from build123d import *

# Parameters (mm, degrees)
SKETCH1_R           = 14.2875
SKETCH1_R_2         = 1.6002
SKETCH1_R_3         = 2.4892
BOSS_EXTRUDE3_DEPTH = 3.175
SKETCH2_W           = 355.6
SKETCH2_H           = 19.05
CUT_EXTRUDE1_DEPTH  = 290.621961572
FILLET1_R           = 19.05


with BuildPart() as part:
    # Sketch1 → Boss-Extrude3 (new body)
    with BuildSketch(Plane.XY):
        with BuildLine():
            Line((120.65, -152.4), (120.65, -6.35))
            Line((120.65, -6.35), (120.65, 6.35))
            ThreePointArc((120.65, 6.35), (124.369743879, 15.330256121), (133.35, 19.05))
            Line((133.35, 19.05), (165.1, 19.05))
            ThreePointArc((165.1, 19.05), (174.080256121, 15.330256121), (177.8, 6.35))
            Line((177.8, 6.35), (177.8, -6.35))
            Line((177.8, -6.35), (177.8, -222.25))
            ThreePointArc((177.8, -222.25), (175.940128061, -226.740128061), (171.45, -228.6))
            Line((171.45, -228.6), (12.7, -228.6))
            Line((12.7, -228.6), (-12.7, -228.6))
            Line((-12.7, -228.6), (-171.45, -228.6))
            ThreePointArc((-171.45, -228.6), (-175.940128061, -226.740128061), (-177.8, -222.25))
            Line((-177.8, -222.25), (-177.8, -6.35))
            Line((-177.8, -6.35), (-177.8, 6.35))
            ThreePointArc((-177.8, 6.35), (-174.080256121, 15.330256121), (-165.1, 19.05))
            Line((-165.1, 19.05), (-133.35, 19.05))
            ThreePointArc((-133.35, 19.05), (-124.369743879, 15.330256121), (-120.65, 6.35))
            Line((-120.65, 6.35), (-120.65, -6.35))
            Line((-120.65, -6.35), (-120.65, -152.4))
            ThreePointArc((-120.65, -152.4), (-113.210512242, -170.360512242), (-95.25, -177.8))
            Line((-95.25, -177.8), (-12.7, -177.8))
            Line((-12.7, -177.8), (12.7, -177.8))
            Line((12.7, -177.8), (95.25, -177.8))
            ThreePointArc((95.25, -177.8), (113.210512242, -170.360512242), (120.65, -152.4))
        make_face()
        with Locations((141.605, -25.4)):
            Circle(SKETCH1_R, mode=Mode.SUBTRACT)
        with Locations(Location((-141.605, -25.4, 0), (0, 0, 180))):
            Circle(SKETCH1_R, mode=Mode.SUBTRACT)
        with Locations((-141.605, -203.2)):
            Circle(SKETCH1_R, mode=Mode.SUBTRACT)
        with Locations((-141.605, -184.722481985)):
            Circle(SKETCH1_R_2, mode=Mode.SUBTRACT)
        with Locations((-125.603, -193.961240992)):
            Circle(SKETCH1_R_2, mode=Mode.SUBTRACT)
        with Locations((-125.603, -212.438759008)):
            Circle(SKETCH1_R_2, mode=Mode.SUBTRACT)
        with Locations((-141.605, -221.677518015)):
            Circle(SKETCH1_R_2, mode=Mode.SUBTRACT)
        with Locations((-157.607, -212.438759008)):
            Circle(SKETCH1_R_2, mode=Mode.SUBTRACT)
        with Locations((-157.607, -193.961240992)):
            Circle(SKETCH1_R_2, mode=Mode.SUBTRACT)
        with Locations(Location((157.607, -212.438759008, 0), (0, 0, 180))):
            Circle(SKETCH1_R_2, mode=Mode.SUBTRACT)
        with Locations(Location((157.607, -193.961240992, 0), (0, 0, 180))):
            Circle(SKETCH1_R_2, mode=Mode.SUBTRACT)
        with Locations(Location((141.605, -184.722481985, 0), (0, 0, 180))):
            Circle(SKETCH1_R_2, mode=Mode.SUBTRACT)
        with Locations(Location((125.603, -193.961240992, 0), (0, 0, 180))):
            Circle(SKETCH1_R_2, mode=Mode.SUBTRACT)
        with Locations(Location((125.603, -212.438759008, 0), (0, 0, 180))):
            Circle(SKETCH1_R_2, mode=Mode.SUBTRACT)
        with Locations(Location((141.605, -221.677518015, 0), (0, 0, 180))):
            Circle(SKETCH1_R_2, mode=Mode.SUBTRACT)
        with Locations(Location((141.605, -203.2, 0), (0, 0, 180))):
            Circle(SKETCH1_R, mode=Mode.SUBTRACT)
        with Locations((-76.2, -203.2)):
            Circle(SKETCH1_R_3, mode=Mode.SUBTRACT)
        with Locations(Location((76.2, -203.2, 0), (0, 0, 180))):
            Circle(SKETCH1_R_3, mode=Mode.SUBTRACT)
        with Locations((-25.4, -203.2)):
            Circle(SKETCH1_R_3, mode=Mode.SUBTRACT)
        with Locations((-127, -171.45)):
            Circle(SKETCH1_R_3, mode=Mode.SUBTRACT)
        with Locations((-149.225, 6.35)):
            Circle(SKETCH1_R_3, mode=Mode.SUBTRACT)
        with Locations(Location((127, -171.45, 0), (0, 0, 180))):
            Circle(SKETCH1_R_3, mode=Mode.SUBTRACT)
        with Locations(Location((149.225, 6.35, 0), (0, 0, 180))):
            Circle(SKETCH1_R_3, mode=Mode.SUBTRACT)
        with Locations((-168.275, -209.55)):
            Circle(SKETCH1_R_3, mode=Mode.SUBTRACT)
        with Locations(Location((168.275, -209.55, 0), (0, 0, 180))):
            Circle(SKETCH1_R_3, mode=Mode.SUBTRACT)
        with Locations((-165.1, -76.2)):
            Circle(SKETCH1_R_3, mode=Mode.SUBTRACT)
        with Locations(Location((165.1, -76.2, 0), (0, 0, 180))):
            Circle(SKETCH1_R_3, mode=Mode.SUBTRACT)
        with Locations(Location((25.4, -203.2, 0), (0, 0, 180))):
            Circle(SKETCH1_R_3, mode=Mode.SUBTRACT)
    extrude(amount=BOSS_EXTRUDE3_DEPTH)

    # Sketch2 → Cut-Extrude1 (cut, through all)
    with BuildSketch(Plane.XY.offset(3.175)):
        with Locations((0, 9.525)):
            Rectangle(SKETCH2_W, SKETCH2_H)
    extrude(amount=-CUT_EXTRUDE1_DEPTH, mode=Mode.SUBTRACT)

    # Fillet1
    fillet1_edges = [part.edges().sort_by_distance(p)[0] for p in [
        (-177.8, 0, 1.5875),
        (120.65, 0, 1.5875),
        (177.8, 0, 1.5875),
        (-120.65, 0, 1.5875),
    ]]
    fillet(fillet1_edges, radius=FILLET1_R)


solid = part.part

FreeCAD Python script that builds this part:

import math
import FreeCAD as App
import Part
import Sketcher
from FreeCAD import Vector
Q = App.Units.Quantity


def edges_at(feature, points):
    """Names of the edges that pass closest to the given points."""
    edges = feature.Shape.Edges
    near = lambda p: min(range(len(edges)), key=lambda i: edges[i].distToShape(Part.Vertex(*p))[0])
    return sorted({f"Edge{near(p) + 1}" for p in points})


def add_polygon(sketch, points):
    """Adds a closed chain of lines whose ends are joined by coincident constraints."""
    first, n = sketch.GeometryCount, len(points)
    for a, b in zip(points, points[1:] + points[:1]):
        sketch.addGeometry(Part.LineSegment(App.Vector(*a, 0), App.Vector(*b, 0)), False)
    for i in range(n):
        sketch.addConstraint(Sketcher.Constraint("Coincident", first + i, 2, first + (i + 1) % n, 1))

doc = App.newDocument("Part")
body = doc.addObject("PartDesign::Body", "Body")

# Sketch on XY plane
sketch1 = doc.addObject("Sketcher::SketchObject", "Sketch")
body.addObject(sketch1)
sketch1.AttachmentSupport = (doc.XY_Plane, [""])
sketch1.MapMode = "FlatFace"
sketch1.addGeometry(Part.LineSegment(Vector(120.65, 6.35, 0), Vector(120.65, -152.4, 0)), False)
sketch1.addGeometry(Part.ArcOfCircle(Part.Circle(Vector(95.25, -152.4, 0), Vector(0, 0, 1), 25.4), math.radians(-90), math.radians(0)), False)
sketch1.addGeometry(Part.LineSegment(Vector(95.25, -177.8, 0), Vector(-95.25, -177.8, 0)), False)
sketch1.addGeometry(Part.ArcOfCircle(Part.Circle(Vector(-95.25, -152.4, 0), Vector(0, 0, 1), 25.4), math.radians(180), math.radians(270)), False)
sketch1.addGeometry(Part.LineSegment(Vector(-120.65, -152.4, 0), Vector(-120.65, 6.35, 0)), False)
sketch1.addGeometry(Part.ArcOfCircle(Part.Circle(Vector(-133.35, 6.35, 0), Vector(0, 0, 1), 12.7), math.radians(0), math.radians(90)), False)
sketch1.addGeometry(Part.LineSegment(Vector(-133.35, 19.05, 0), Vector(-165.1, 19.05, 0)), False)
sketch1.addGeometry(Part.ArcOfCircle(Part.Circle(Vector(-165.1, 6.35, 0), Vector(0, 0, 1), 12.7), math.radians(90), math.radians(180)), False)
sketch1.addGeometry(Part.LineSegment(Vector(-177.8, 6.35, 0), Vector(-177.8, -222.25, 0)), False)
sketch1.addGeometry(Part.ArcOfCircle(Part.Circle(Vector(-171.45, -222.25, 0), Vector(0, 0, 1), 6.35), math.radians(180), math.radians(270)), False)
sketch1.addGeometry(Part.LineSegment(Vector(-171.45, -228.6, 0), Vector(171.45, -228.6, 0)), False)
sketch1.addGeometry(Part.ArcOfCircle(Part.Circle(Vector(171.45, -222.25, 0), Vector(0, 0, 1), 6.35), math.radians(-90), math.radians(0)), False)
sketch1.addGeometry(Part.LineSegment(Vector(177.8, -222.25, 0), Vector(177.8, 6.35, 0)), False)
sketch1.addGeometry(Part.ArcOfCircle(Part.Circle(Vector(165.1, 6.35, 0), Vector(0, 0, 1), 12.7), math.radians(0), math.radians(90)), False)
sketch1.addGeometry(Part.LineSegment(Vector(165.1, 19.05, 0), Vector(133.35, 19.05, 0)), False)
sketch1.addGeometry(Part.ArcOfCircle(Part.Circle(Vector(133.35, 6.35, 0), Vector(0, 0, 1), 12.7), math.radians(90), math.radians(180)), False)
sketch1.addGeometry(Part.Circle(Vector(168.275, -209.55, 0), Vector(0, 0, 1), 2.4892), False)
sketch1.addGeometry(Part.Circle(Vector(157.607, -212.438759, 0), Vector(0, 0, 1), 1.6002), False)
sketch1.addGeometry(Part.Circle(Vector(141.605, -221.677518, 0), Vector(0, 0, 1), 1.6002), False)
sketch1.addGeometry(Part.Circle(Vector(141.605, -203.2, 0), Vector(0, 0, 1), 14.2875), False)
sketch1.addGeometry(Part.Circle(Vector(125.603, -212.438759, 0), Vector(0, 0, 1), 1.6002), False)
sketch1.addGeometry(Part.Circle(Vector(157.607, -193.961241, 0), Vector(0, 0, 1), 1.6002), False)
sketch1.addGeometry(Part.Circle(Vector(141.605, -184.722482, 0), Vector(0, 0, 1), 1.6002), False)
sketch1.addGeometry(Part.Circle(Vector(125.603, -193.961241, 0), Vector(0, 0, 1), 1.6002), False)
sketch1.addGeometry(Part.Circle(Vector(127, -171.45, 0), Vector(0, 0, 1), 2.4892), False)
sketch1.addGeometry(Part.Circle(Vector(76.2, -203.2, 0), Vector(0, 0, 1), 2.4892), False)
sketch1.addGeometry(Part.Circle(Vector(25.4, -203.2, 0), Vector(0, 0, 1), 2.4892), False)
sketch1.addGeometry(Part.Circle(Vector(-25.4, -203.2, 0), Vector(0, 0, 1), 2.4892), False)
sketch1.addGeometry(Part.Circle(Vector(-76.2, -203.2, 0), Vector(0, 0, 1), 2.4892), False)
sketch1.addGeometry(Part.Circle(Vector(-125.603, -212.438759, 0), Vector(0, 0, 1), 1.6002), False)
sketch1.addGeometry(Part.Circle(Vector(-141.605, -221.677518, 0), Vector(0, 0, 1), 1.6002), False)
sketch1.addGeometry(Part.Circle(Vector(-157.607, -212.438759, 0), Vector(0, 0, 1), 1.6002), False)
sketch1.addGeometry(Part.Circle(Vector(-168.275, -209.55, 0), Vector(0, 0, 1), 2.4892), False)
sketch1.addGeometry(Part.Circle(Vector(-141.605, -203.2, 0), Vector(0, 0, 1), 14.2875), False)
sketch1.addGeometry(Part.Circle(Vector(-125.603, -193.961241, 0), Vector(0, 0, 1), 1.6002), False)
sketch1.addGeometry(Part.Circle(Vector(-127, -171.45, 0), Vector(0, 0, 1), 2.4892), False)
sketch1.addGeometry(Part.Circle(Vector(-141.605, -184.722482, 0), Vector(0, 0, 1), 1.6002), False)
sketch1.addGeometry(Part.Circle(Vector(-157.607, -193.961241, 0), Vector(0, 0, 1), 1.6002), False)
sketch1.addGeometry(Part.Circle(Vector(165.1, -76.2, 0), Vector(0, 0, 1), 2.4892), False)
sketch1.addGeometry(Part.Circle(Vector(141.605, -25.4, 0), Vector(0, 0, 1), 14.2875), False)
sketch1.addGeometry(Part.Circle(Vector(149.225, 6.35, 0), Vector(0, 0, 1), 2.4892), False)
sketch1.addGeometry(Part.Circle(Vector(-165.1, -76.2, 0), Vector(0, 0, 1), 2.4892), False)
sketch1.addGeometry(Part.Circle(Vector(-141.605, -25.4, 0), Vector(0, 0, 1), 14.2875), False)
sketch1.addGeometry(Part.Circle(Vector(-149.225, 6.35, 0), Vector(0, 0, 1), 2.4892), False)
sketch1.addConstraint(Sketcher.Constraint("Tangent", 0, 2, 1, 2))
sketch1.addConstraint(Sketcher.Constraint("Tangent", 1, 1, 2, 1))
sketch1.addConstraint(Sketcher.Constraint("Tangent", 2, 2, 3, 2))
sketch1.addConstraint(Sketcher.Constraint("Tangent", 3, 1, 4, 1))
sketch1.addConstraint(Sketcher.Constraint("Tangent", 4, 2, 5, 1))
sketch1.addConstraint(Sketcher.Constraint("Tangent", 5, 2, 6, 1))
sketch1.addConstraint(Sketcher.Constraint("Tangent", 6, 2, 7, 1))
sketch1.addConstraint(Sketcher.Constraint("Tangent", 7, 2, 8, 1))
sketch1.addConstraint(Sketcher.Constraint("Tangent", 8, 2, 9, 1))
sketch1.addConstraint(Sketcher.Constraint("Tangent", 9, 2, 10, 1))
sketch1.addConstraint(Sketcher.Constraint("Tangent", 10, 2, 11, 1))
sketch1.addConstraint(Sketcher.Constraint("Tangent", 11, 2, 12, 1))
sketch1.addConstraint(Sketcher.Constraint("Tangent", 12, 2, 13, 1))
sketch1.addConstraint(Sketcher.Constraint("Tangent", 13, 2, 14, 1))
sketch1.addConstraint(Sketcher.Constraint("Tangent", 14, 2, 15, 1))
sketch1.addConstraint(Sketcher.Constraint("Tangent", 15, 2, 0, 1))
sketch1.addConstraint(Sketcher.Constraint("Vertical", 0))
sketch1.addConstraint(Sketcher.Constraint("Horizontal", 2))
sketch1.addConstraint(Sketcher.Constraint("Vertical", 4))
sketch1.addConstraint(Sketcher.Constraint("Horizontal", 6))
sketch1.addConstraint(Sketcher.Constraint("Vertical", 8))
sketch1.addConstraint(Sketcher.Constraint("Horizontal", 10))
sketch1.addConstraint(Sketcher.Constraint("Vertical", 12))
sketch1.addConstraint(Sketcher.Constraint("Horizontal", 14))
sketch1.addConstraint(Sketcher.Constraint("Equal", 1, 3))
sketch1.addConstraint(Sketcher.Constraint("Equal", 5, 7))
sketch1.addConstraint(Sketcher.Constraint("Equal", 9, 11))
sketch1.addConstraint(Sketcher.Constraint("Equal", 7, 13))
sketch1.addConstraint(Sketcher.Constraint("Equal", 13, 15))
sketch1.addConstraint(Sketcher.Constraint("Equal", 17, 18))
sketch1.addConstraint(Sketcher.Constraint("Equal", 18, 20))
sketch1.addConstraint(Sketcher.Constraint("Equal", 20, 21))
sketch1.addConstraint(Sketcher.Constraint("Equal", 21, 22))
sketch1.addConstraint(Sketcher.Constraint("Equal", 22, 23))
sketch1.addConstraint(Sketcher.Constraint("Equal", 16, 24))
sketch1.addConstraint(Sketcher.Constraint("Equal", 24, 25))
sketch1.addConstraint(Sketcher.Constraint("Equal", 25, 26))
sketch1.addConstraint(Sketcher.Constraint("Equal", 26, 27))
sketch1.addConstraint(Sketcher.Constraint("Equal", 27, 28))
sketch1.addConstraint(Sketcher.Constraint("Equal", 23, 29))
sketch1.addConstraint(Sketcher.Constraint("Equal", 29, 30))
sketch1.addConstraint(Sketcher.Constraint("Equal", 30, 31))
sketch1.addConstraint(Sketcher.Constraint("Equal", 28, 32))
sketch1.addConstraint(Sketcher.Constraint("Equal", 19, 33))
sketch1.addConstraint(Sketcher.Constraint("Equal", 31, 34))
sketch1.addConstraint(Sketcher.Constraint("Equal", 32, 35))
sketch1.addConstraint(Sketcher.Constraint("Equal", 34, 36))
sketch1.addConstraint(Sketcher.Constraint("Equal", 36, 37))
sketch1.addConstraint(Sketcher.Constraint("Equal", 35, 38))
sketch1.addConstraint(Sketcher.Constraint("Equal", 33, 39))
sketch1.addConstraint(Sketcher.Constraint("Equal", 38, 40))
sketch1.addConstraint(Sketcher.Constraint("Equal", 40, 41))
sketch1.addConstraint(Sketcher.Constraint("Equal", 39, 42))
sketch1.addConstraint(Sketcher.Constraint("Equal", 41, 43))
sketch1.addConstraint(Sketcher.Constraint("Symmetric", 7, 3, 13, 3, -2))
sketch1.addConstraint(Sketcher.Constraint("Symmetric", 26, 3, 27, 3, -2))
sketch1.addConstraint(Sketcher.Constraint("Symmetric", 25, 3, 28, 3, -2))
sketch1.addConstraint(Sketcher.Constraint("Symmetric", 20, 3, 29, 3, -2))
sketch1.addConstraint(Sketcher.Constraint("Symmetric", 18, 3, 30, 3, -2))
sketch1.addConstraint(Sketcher.Constraint("Symmetric", 17, 3, 31, 3, -2))
sketch1.addConstraint(Sketcher.Constraint("Symmetric", 16, 3, 32, 3, -2))
sketch1.addConstraint(Sketcher.Constraint("Symmetric", 19, 3, 33, 3, -2))
sketch1.addConstraint(Sketcher.Constraint("Symmetric", 23, 3, 34, 3, -2))
sketch1.addConstraint(Sketcher.Constraint("Symmetric", 24, 3, 35, 3, -2))
sketch1.addConstraint(Sketcher.Constraint("Symmetric", 22, 3, 36, 3, -2))
sketch1.addConstraint(Sketcher.Constraint("Symmetric", 21, 3, 37, 3, -2))
sketch1.addConstraint(Sketcher.Constraint("Symmetric", 38, 3, 41, 3, -2))
sketch1.addConstraint(Sketcher.Constraint("Symmetric", 39, 3, 42, 3, -2))
sketch1.addConstraint(Sketcher.Constraint("Symmetric", 40, 3, 43, 3, -2))
sketch1.addConstraint(Sketcher.Constraint("Horizontal", 17, 3, 20, 3))
sketch1.addConstraint(Sketcher.Constraint("Horizontal", 21, 3, 23, 3))
sketch1.addConstraint(Sketcher.Constraint("Horizontal", 19, 3, 25, 3))
sketch1.addConstraint(Sketcher.Constraint("Horizontal", 25, 3, 26, 3))
sketch1.addConstraint(Sketcher.Constraint("Horizontal", 15, 3, 40, 3))
sketch1.addConstraint(Sketcher.Constraint("Vertical", 18, 3, 19, 3))
sketch1.addConstraint(Sketcher.Constraint("Vertical", 17, 3, 21, 3))
sketch1.addConstraint(Sketcher.Constraint("Vertical", 19, 3, 22, 3))
sketch1.addConstraint(Sketcher.Constraint("Vertical", 20, 3, 23, 3))
sketch1.addConstraint(Sketcher.Constraint("Vertical", 13, 3, 38, 3))
sketch1.addConstraint(Sketcher.Constraint("Vertical", 22, 3, 39, 3))
sketch1.addConstraint(Sketcher.Constraint("Equal", 6, 14))
sketch1.addConstraint(Sketcher.Constraint("Radius", 1, Q("1 in")))
sketch1.addConstraint(Sketcher.Constraint("Radius", 5, Q("0.5 in")))
sketch1.addConstraint(Sketcher.Constraint("DistanceY", 8, 2, 8, 1, Q("9 in")))
sketch1.addConstraint(Sketcher.Constraint("Radius", 9, Q("0.25 in")))
sketch1.addConstraint(Sketcher.Constraint("Diameter", 16, Q("0.196 in")))
sketch1.addConstraint(Sketcher.Constraint("Diameter", 17, Q("0.126 in")))
sketch1.addConstraint(Sketcher.Constraint("Diameter", 19, Q("1.125 in")))
sketch1.addConstraint(Sketcher.Constraint("DistanceX", 2, 2, 2, 1, Q("7.5 in")))
sketch1.addConstraint(Sketcher.Constraint("DistanceX", 10, 1, 10, 2, Q("13.5 in")))
sketch1.addConstraint(Sketcher.Constraint("DistanceY", 1, 3, -1, 1, Q("6 in")))
sketch1.addConstraint(Sketcher.Constraint("DistanceY", 19, 3, -1, 1, Q("8 in")))
sketch1.addConstraint(Sketcher.Constraint("DistanceX", -1, 1, 24, 3, Q("5 in")))
sketch1.addConstraint(Sketcher.Constraint("DistanceX", -1, 1, 25, 3, Q("3 in")))
sketch1.addConstraint(Sketcher.Constraint("DistanceX", -1, 1, 26, 3, Q("1 in")))
sketch1.addConstraint(Sketcher.Constraint("DistanceY", 38, 3, -1, 1, Q("3 in")))
sketch1.addConstraint(Sketcher.Constraint("DistanceY", 39, 3, -1, 1, Q("1 in")))
sketch1.addConstraint(Sketcher.Constraint("DistanceY", 9, 2, -1, 1, Q("9 in")))
sketch1.addConstraint(Sketcher.Constraint("DistanceY", 11, 3, 16, 3, Q("0.5 in")))
sketch1.addConstraint(Sketcher.Constraint("DistanceX", 39, 3, 40, 3, Q("0.3 in")))
sketch1.addConstraint(Sketcher.Constraint("DistanceY", 24, 3, -1, 1, Q("6.75 in")))
sketch1.addConstraint(Sketcher.Constraint("DistanceX", 17, 3, 16, 3, Q("0.42 in")))
sketch1.addConstraint(Sketcher.Constraint("DistanceX", 18, 3, 17, 3, Q("0.63 in")))
sketch1.addConstraint(Sketcher.Constraint("DistanceX", 20, 3, 18, 3, Q("0.63 in")))
sketch1.addConstraint(Sketcher.Constraint("DistanceX", -1, 1, 16, 3, Q("6.625 in")))
sketch1.addConstraint(Sketcher.Constraint("DistanceY", 17, 3, -1, 1, 212.438759))
sketch1.addConstraint(Sketcher.Constraint("DistanceY", 18, 3, -1, 1, 221.677518))
sketch1.addConstraint(Sketcher.Constraint("DistanceY", 21, 3, -1, 1, 193.961241))
sketch1.addConstraint(Sketcher.Constraint("DistanceY", 22, 3, -1, 1, 184.722482))
pad1 = doc.addObject("PartDesign::Pad", "Pad")
body.addObject(pad1)
pad1.Profile = sketch1
pad1.Length = Q("0.125 in")

# Sketch on XY plane
sketch2 = doc.addObject("Sketcher::SketchObject", "Sketch001")
body.addObject(sketch2)
sketch2.AttachmentSupport = (doc.XY_Plane, [""])
sketch2.MapMode = "FlatFace"
sketch2.AttachmentOffset = App.Placement(Vector(0, 0, 0.125 * 25.4), App.Rotation())
add_polygon(sketch2, [(-177.8, 19.05), (-177.8, 0), (177.8, 0), (177.8, 19.05)])  # lines 0-3
sketch2.addConstraint(Sketcher.Constraint("Vertical", 0))
sketch2.addConstraint(Sketcher.Constraint("Horizontal", 1))
sketch2.addConstraint(Sketcher.Constraint("Vertical", 2))
sketch2.addConstraint(Sketcher.Constraint("Horizontal", 3))
sketch2.addConstraint(Sketcher.Constraint("Symmetric", 0, 2, 1, 2, -1, 1))
sketch2.addConstraint(Sketcher.Constraint("DistanceX", 1, 1, 1, 2, Q("14 in")))
sketch2.addConstraint(Sketcher.Constraint("DistanceY", 0, 2, 0, 1, Q("0.75 in")))
pocket1 = doc.addObject("PartDesign::Pocket", "Pocket")
body.addObject(pocket1)
pocket1.Profile = sketch2
pocket1.Type = "ThroughAll"
doc.recompute()

fillet = doc.addObject("PartDesign::Fillet", "Fillet")
body.addObject(fillet)
fillet.Base = (pocket1, edges_at(pocket1, [
    (-177.8, 0, 1.587),
    (120.65, 0, 1.587),
    (177.8, 0, 1.587),
    (-120.65, 0, 1.587),
]))
fillet.Radius = Q("0.75 in")

doc.recompute()
